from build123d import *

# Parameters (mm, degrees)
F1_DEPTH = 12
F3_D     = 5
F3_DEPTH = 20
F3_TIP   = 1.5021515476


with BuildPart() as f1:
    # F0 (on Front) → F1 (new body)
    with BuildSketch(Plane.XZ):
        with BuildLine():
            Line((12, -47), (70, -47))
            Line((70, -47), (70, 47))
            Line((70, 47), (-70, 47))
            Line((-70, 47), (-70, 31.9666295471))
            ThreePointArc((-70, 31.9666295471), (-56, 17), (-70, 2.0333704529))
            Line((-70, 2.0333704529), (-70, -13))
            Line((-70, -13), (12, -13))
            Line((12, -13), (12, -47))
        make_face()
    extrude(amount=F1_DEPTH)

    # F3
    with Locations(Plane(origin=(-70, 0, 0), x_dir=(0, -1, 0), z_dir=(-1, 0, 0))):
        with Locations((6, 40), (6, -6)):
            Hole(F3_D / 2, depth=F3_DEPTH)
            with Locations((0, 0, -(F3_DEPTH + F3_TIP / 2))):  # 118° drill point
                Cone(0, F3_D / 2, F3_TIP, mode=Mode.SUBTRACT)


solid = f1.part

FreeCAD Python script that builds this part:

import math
import FreeCAD as App
import Part
import Sketcher

V = App.Vector

doc = App.newDocument("Part")
body = doc.addObject("PartDesign::Body", "Body")

# Sketch on XZ plane
sketch1 = doc.addObject("Sketcher::SketchObject", "Sketch")
body.addObject(sketch1)
sketch1.AttachmentSupport = (doc.XZ_Plane, [""])
sketch1.MapMode = "FlatFace"
sketch1.addGeometry(Part.LineSegment(V(12, -47, 0), V(70, -47, 0)), False)
sketch1.addGeometry(Part.LineSegment(V(70, -47, 0), V(70, 47, 0)), False)
sketch1.addGeometry(Part.LineSegment(V(70, 47, 0), V(-70, 47, 0)), False)
sketch1.addGeometry(Part.LineSegment(V(-70, 47, 0), V(-70, 32, 0)), False)
sketch1.addGeometry(Part.ArcOfCircle(Part.Circle(V(-71, 17, 0), V(0, 0, 1), 15), math.radians(-86), math.radians(86)), False)
sketch1.addGeometry(Part.LineSegment(V(-70, 2, 0), V(-70, -13, 0)), False)
sketch1.addGeometry(Part.LineSegment(V(-70, -13, 0), V(12, -13, 0)), False)
sketch1.addGeometry(Part.LineSegment(V(12, -13, 0), V(12, -47, 0)), False)
sketch1.addConstraint(Sketcher.Constraint("Coincident", 0, 2, 1, 1))
sketch1.addConstraint(Sketcher.Constraint("Coincident", 1, 2, 2, 1))
sketch1.addConstraint(Sketcher.Constraint("Coincident", 2, 2, 3, 1))
sketch1.addConstraint(Sketcher.Constraint("Coincident", 3, 2, 4, 2))
sketch1.addConstraint(Sketcher.Constraint("Coincident", 4, 1, 5, 1))
sketch1.addConstraint(Sketcher.Constraint("Coincident", 5, 2, 6, 1))
sketch1.addConstraint(Sketcher.Constraint("Coincident", 6, 2, 7, 1))
sketch1.addConstraint(Sketcher.Constraint("Coincident", 7, 2, 0, 1))
sketch1.addConstraint(Sketcher.Constraint("Horizontal", 0))
sketch1.addConstraint(Sketcher.Constraint("Vertical", 1))
sketch1.addConstraint(Sketcher.Constraint("Horizontal", 2))
sketch1.addConstraint(Sketcher.Constraint("Vertical", 3))
sketch1.addConstraint(Sketcher.Constraint("Vertical", 5))
sketch1.addConstraint(Sketcher.Constraint("Horizontal", 6))
sketch1.addConstraint(Sketcher.Constraint("Vertical", 7))
sketch1.addConstraint(Sketcher.Constraint("Symmetric", 0, 2, 2, 2, -1, 1))
sketch1.addConstraint(Sketcher.Constraint("Vertical", 3, 2, 4, 1))
sketch1.addConstraint(Sketcher.Constraint("Equal", 3, 5))
sketch1.addConstraint(Sketcher.Constraint("Radius", 4, 15.0))
sketch1.addConstraint(Sketcher.Constraint("DistanceX", 0, 1, 0, 2, 58.0))
sketch1.addConstraint(Sketcher.Constraint("DistanceX", 2, 2, 2, 1, 140.0))
sketch1.addConstraint(Sketcher.Constraint("DistanceY", 1, 1, 1, 2, 94.0))
sketch1.addConstraint(Sketcher.Constraint("DistanceY", 7, 2, 7, 1, 34.0))
sketch1.addConstraint(Sketcher.Constraint("DistanceX", 4, 3, -1, 1, 71.0))
pad1 = doc.addObject("PartDesign::Pad", "Pad")
body.addObject(pad1)
pad1.Profile = sketch1
pad1.Length = 12

# Sketch on YZ plane
sketch2 = doc.addObject("Sketcher::SketchObject", "Sketch001")
body.addObject(sketch2)
sketch2.AttachmentSupport = (doc.YZ_Plane, [""])
sketch2.MapMode = "FlatFace"
sketch2.AttachmentOffset = App.Placement(V(0, 0, -70), App.Rotation())
sketch2.addGeometry(Part.Circle(V(-6, 40, 0), V(0, 0, 1), 2.5), False)
sketch2.addGeometry(Part.Circle(V(-6, -6, 0), V(0, 0, 1), 2.5), False)
sketch2.addConstraint(Sketcher.Constraint("Equal", 0, 1))
sketch2.addConstraint(Sketcher.Constraint("Vertical", 0, 3, 1, 3))
sketch2.addConstraint(Sketcher.Constraint("Diameter", 0, 5.0))
sketch2.addConstraint(Sketcher.Constraint("DistanceX", 0, 3, -1, 1, 6.0))
sketch2.addConstraint(Sketcher.Constraint("DistanceY", -1, 1, 0, 3, 40.0))
sketch2.addConstraint(Sketcher.Constraint("DistanceY", 1, 3, -1, 1, 6.0))
doc.recompute()
hole = doc.addObject("PartDesign::Hole", "Hole")
body.addObject(hole)
hole.Profile = sketch2
hole.ThreadType = "None"
hole.Diameter = 5
hole.DepthType = "Dimension"
hole.Depth = 20
hole.DrillPoint = "Angled"
hole.DrillPointAngle = 118
hole.Reversed = True

doc.recompute()
